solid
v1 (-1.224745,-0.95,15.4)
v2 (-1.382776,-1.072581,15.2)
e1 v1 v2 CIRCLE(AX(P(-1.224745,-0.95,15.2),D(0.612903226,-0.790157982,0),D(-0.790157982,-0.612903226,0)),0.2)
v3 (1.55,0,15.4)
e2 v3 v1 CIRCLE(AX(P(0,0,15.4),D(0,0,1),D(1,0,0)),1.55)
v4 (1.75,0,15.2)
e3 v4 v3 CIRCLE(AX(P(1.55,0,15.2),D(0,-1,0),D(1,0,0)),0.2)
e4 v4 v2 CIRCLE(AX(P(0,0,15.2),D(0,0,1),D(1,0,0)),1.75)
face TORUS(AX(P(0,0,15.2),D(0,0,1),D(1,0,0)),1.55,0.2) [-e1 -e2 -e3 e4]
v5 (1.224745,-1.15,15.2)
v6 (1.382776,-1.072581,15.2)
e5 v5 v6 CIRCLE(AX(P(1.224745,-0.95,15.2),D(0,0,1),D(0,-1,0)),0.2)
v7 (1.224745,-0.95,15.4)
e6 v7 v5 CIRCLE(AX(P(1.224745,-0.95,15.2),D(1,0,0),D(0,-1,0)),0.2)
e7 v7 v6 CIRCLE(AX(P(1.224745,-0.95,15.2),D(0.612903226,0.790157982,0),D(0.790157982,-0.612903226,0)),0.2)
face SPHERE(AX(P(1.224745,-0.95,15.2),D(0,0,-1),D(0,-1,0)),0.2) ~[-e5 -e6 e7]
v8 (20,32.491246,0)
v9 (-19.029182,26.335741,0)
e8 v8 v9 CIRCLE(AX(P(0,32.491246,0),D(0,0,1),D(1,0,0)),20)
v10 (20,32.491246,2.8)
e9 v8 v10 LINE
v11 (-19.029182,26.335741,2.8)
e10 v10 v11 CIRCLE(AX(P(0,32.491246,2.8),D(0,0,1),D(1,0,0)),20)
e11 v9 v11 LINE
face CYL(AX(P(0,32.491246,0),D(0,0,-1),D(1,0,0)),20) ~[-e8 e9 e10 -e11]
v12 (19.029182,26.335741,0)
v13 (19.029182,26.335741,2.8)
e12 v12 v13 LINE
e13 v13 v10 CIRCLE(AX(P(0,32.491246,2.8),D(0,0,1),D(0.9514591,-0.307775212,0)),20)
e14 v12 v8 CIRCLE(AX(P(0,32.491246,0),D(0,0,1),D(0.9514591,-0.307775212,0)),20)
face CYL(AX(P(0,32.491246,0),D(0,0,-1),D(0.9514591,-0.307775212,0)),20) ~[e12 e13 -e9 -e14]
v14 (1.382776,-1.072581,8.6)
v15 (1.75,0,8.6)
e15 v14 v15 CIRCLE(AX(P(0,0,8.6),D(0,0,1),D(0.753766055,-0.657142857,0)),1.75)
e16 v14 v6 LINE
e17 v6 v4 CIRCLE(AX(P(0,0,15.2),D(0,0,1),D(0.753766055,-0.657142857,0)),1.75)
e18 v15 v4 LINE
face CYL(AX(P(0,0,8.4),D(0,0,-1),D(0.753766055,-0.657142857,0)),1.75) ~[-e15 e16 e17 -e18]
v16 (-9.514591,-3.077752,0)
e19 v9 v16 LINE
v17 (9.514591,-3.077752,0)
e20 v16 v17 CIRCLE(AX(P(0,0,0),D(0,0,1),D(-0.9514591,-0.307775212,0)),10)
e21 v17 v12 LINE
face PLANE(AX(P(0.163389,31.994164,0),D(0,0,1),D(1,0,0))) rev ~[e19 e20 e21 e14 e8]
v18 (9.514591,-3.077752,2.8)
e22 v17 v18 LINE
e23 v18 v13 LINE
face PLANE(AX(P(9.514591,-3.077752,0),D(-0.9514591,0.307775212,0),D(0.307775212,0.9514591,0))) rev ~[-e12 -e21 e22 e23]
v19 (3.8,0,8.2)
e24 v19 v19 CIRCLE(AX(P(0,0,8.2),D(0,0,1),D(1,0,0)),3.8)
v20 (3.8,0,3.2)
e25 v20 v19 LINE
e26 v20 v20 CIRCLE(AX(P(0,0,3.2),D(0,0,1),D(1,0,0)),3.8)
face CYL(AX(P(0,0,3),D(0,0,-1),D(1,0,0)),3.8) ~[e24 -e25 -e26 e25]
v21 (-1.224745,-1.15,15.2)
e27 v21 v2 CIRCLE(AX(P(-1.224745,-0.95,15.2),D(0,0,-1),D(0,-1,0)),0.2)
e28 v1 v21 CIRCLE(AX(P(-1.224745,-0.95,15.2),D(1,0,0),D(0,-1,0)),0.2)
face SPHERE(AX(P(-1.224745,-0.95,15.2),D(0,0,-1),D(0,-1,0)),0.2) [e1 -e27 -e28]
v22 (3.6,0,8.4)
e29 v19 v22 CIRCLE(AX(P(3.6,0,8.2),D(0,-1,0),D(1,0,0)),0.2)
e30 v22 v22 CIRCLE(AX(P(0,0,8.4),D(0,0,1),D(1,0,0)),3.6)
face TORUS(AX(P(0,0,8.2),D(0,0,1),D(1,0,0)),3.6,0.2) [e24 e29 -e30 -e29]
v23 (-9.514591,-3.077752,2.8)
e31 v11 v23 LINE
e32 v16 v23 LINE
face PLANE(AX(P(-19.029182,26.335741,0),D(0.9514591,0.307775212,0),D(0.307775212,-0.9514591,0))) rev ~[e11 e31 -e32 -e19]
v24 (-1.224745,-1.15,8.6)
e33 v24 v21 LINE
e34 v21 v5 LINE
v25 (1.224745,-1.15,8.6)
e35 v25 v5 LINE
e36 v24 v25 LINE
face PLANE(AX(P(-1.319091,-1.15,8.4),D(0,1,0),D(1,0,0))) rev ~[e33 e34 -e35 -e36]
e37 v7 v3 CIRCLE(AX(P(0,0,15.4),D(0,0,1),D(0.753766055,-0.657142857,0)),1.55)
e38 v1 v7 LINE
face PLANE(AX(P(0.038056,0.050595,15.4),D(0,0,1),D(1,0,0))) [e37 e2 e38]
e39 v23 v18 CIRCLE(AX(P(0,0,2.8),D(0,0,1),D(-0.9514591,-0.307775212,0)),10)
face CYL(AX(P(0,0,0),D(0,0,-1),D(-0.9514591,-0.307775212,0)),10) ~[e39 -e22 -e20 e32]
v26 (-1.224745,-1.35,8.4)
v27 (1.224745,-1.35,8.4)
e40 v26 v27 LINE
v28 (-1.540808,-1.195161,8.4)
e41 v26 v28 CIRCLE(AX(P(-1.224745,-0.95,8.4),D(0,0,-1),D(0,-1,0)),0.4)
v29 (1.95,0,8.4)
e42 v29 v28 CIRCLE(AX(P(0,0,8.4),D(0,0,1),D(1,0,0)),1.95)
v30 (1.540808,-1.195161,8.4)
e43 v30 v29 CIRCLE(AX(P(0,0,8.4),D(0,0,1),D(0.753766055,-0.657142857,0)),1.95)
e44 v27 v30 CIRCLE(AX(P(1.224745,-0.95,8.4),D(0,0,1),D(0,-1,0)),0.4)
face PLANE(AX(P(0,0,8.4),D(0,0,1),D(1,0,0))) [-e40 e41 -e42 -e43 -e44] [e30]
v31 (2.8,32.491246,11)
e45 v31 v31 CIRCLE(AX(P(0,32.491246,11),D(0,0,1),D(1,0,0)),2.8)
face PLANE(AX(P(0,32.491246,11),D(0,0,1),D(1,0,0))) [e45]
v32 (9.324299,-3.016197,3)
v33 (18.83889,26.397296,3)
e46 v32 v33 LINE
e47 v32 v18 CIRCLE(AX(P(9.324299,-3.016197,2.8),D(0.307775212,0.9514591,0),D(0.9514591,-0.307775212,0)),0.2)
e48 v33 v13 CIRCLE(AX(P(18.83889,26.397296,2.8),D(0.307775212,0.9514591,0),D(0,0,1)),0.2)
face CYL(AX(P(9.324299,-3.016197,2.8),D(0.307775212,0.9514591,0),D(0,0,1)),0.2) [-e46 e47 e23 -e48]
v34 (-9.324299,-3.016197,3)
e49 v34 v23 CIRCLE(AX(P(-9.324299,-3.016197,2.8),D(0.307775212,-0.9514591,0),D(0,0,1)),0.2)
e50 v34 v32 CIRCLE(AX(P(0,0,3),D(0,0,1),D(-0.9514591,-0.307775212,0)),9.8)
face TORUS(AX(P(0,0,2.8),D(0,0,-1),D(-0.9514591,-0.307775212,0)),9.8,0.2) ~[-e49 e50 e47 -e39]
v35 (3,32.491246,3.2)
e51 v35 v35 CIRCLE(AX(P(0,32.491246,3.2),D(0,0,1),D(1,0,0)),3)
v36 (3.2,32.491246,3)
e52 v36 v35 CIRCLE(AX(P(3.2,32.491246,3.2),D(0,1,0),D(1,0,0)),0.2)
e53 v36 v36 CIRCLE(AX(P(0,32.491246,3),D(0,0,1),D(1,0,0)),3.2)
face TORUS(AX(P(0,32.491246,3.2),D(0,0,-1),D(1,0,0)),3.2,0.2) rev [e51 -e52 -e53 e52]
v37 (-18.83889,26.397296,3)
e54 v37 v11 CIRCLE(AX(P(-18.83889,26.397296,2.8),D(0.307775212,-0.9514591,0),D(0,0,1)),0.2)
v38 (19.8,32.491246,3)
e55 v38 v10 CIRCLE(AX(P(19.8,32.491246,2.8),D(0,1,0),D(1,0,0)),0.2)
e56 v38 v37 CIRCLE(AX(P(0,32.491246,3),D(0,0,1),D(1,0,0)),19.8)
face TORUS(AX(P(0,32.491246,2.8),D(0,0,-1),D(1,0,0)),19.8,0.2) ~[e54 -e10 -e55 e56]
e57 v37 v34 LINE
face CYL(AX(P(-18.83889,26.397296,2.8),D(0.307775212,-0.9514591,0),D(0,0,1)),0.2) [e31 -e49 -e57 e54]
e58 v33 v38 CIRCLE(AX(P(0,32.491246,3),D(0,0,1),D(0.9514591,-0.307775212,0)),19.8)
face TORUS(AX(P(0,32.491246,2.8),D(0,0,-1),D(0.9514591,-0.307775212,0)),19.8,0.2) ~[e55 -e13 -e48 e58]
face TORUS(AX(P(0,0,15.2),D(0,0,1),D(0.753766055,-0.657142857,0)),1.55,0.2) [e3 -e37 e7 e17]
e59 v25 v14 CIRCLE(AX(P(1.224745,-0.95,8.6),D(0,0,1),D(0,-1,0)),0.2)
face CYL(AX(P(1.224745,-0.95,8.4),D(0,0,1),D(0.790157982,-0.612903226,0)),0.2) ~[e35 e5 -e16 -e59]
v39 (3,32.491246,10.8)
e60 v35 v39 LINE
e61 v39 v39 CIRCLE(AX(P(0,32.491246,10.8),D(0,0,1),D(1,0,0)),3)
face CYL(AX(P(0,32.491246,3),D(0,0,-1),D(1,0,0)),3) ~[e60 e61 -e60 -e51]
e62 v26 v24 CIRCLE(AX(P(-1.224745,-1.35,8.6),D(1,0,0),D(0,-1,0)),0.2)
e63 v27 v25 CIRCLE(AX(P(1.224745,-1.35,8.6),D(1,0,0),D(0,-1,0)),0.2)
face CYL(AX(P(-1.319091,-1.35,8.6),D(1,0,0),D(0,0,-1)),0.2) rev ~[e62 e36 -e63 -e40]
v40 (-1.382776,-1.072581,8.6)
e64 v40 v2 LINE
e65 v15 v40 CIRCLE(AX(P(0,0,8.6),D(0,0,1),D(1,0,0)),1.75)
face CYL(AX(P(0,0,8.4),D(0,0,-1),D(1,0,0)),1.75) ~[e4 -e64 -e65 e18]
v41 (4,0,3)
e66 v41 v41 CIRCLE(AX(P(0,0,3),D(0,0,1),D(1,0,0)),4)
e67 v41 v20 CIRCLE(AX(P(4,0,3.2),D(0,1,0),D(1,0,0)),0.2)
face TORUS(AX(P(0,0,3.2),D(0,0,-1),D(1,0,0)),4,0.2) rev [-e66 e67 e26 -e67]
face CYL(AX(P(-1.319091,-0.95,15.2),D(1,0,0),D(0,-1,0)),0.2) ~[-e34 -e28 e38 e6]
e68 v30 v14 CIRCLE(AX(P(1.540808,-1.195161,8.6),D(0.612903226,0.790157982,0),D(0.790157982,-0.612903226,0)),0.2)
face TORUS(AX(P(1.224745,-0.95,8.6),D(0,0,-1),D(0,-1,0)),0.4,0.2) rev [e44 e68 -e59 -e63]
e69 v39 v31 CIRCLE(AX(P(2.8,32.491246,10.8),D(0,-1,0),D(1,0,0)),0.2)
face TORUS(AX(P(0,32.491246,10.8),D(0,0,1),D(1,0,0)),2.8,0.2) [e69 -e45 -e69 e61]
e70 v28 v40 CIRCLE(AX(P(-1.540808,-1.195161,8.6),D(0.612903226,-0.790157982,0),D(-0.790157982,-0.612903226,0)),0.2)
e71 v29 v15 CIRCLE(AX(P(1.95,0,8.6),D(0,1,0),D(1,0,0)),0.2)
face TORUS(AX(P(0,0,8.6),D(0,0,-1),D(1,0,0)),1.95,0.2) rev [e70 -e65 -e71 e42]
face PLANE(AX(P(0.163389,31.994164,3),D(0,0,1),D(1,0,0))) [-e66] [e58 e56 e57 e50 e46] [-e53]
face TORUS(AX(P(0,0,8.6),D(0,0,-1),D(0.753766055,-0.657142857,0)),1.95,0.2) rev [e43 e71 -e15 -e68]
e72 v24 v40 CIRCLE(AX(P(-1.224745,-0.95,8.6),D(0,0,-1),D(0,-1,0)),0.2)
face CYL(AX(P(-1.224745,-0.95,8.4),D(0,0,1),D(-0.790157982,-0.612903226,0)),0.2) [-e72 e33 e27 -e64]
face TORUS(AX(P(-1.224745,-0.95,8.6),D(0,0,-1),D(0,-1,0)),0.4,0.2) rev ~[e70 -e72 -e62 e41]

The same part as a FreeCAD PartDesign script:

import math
import FreeCAD as App
import Part
import Sketcher

V = App.Vector
Q = App.Units.Quantity


def edges_at(feature, points):
    """Names of the edges that pass closest to the given points."""
    edges = feature.Shape.Edges
    near = lambda p: min(range(len(edges)), key=lambda i: edges[i].distToShape(Part.Vertex(*p))[0])
    return sorted({f"Edge{near(p) + 1}" for p in points})

doc = App.newDocument("Part")
params = doc.addObject("Spreadsheet::Sheet", "Params")
for row, (alias, value) in enumerate([
    ("sketch1_radius", "20 mm"),
    ("sketch1_radius2", "10 mm"),
    ("pad1_length", "3 mm"),
    ("sketch2_diameter", "6 mm"),
    ("pad2_length", "8 mm"),
    ("sketch3_diameter", "7.6 mm"),
    ("pad3_length", "5.4 mm"),
    ("sketch4_radius", "1.75 mm"),
    ("pad4_length", "7 mm"),
    ("fillet_radius", "0.2 mm"),
], start=1):
    params.set(f"A{row}", alias)
    params.set(f"B{row}", "=" + value)
    params.setAlias(f"B{row}", alias)

body = doc.addObject("PartDesign::Body", "Body")

sketch1 = body.newObject("Sketcher::SketchObject", "Sketch")
sketch1.AttachmentSupport = (doc.getObject("XY_Plane"), [""])
sketch1.MapMode = "FlatFace"
sketch1.addGeometry([
    Part.ArcOfCircle(Part.Circle(V(0, 32, 0), V(0, 0, 1), 20), math.radians(-17.93), math.radians(0)),
    Part.ArcOfCircle(Part.Circle(V(0, 32, 0), V(0, 0, 1), 20), math.radians(0), math.radians(198)),
    Part.LineSegment(V(-19, 26, 0), V(-10, -3, 0)),
    Part.ArcOfCircle(Part.Circle(V(0, 0, 0), V(0, 0, 1), 10), math.radians(-162), math.radians(-18)),
    Part.LineSegment(V(10, -3, 0), V(19, 26, 0)),
], False)
sketch1.addConstraint([
    Sketcher.Constraint("Tangent", 0, 2, 1, 1),
    Sketcher.Constraint("Tangent", 1, 2, 2, 1),
    Sketcher.Constraint("Tangent", 2, 2, 3, 1),
    Sketcher.Constraint("Tangent", 3, 2, 4, 1),
    Sketcher.Constraint("Tangent", 4, 2, 0, 1),
    Sketcher.Constraint("Coincident", 3, 3, -1, 1),
    Sketcher.Constraint("Equal", 0, 1),
    Sketcher.Constraint("PointOnObject", 0, 3, -2),
    Sketcher.Constraint("Horizontal", 1, 3, 0, 2),
    Sketcher.Constraint("Radius", 0, Q("20 mm")),
    Sketcher.Constraint("Radius", 3, Q("10 mm")),
    Sketcher.Constraint("Distance", 2, Q("30.914091 mm")),
])
sketch1.setExpression("Constraints[9]", "Params.sketch1_radius")
sketch1.setExpression("Constraints[10]", "Params.sketch1_radius2")
pad1 = body.newObject("PartDesign::Pad", "Pad")
pad1.Profile = sketch1
pad1.setExpression("Length", "Params.pad1_length")

sketch2 = body.newObject("Sketcher::SketchObject", "Sketch001")
sketch2.AttachmentSupport = (doc.getObject("XY_Plane"), [""])
sketch2.MapMode = "FlatFace"
sketch2.AttachmentOffset = App.Placement(V(0, 0, 3), App.Rotation())
sketch2.addGeometry(Part.Circle(V(0, 32.5, 0), V(0, 0, 1), 3), False)
sketch2.addConstraint([
    Sketcher.Constraint("PointOnObject", 0, 3, -2),
    Sketcher.Constraint("Diameter", 0, Q("6 mm")),
    Sketcher.Constraint("DistanceY", -1, 1, 0, 3, Q("32.491246 mm")),
])
sketch2.setExpression("Constraints[1]", "Params.sketch2_diameter")
pad2 = body.newObject("PartDesign::Pad", "Pad001")
pad2.Profile = sketch2
pad2.setExpression("Length", "Params.pad2_length")

sketch3 = body.newObject("Sketcher::SketchObject", "Sketch002")
sketch3.AttachmentSupport = (doc.getObject("XY_Plane"), [""])
sketch3.MapMode = "FlatFace"
sketch3.AttachmentOffset = App.Placement(V(0, 0, 3), App.Rotation())
sketch3.addGeometry(Part.Circle(V(0, 0, 0), V(0, 0, 1), 3.8), False)
sketch3.addConstraint([
    Sketcher.Constraint("Coincident", 0, 3, -1, 1),
    Sketcher.Constraint("Diameter", 0, Q("7.6 mm")),
])
sketch3.setExpression("Constraints[1]", "Params.sketch3_diameter")
pad3 = body.newObject("PartDesign::Pad", "Pad002")
pad3.Profile = sketch3
pad3.setExpression("Length", "Params.pad3_length")

sketch4 = body.newObject("Sketcher::SketchObject", "Sketch003")
sketch4.AttachmentSupport = (doc.getObject("XY_Plane"), [""])
sketch4.MapMode = "FlatFace"
sketch4.AttachmentOffset = App.Placement(V(0, 0, 8.4), App.Rotation())
sketch4.addGeometry([
    Part.ArcOfCircle(Part.Circle(V(0, 0, 0), V(0, 0, 1), 1.8), math.radians(-41), math.radians(0)),
    Part.ArcOfCircle(Part.Circle(V(0, 0, 0), V(0, 0, 1), 1.8), math.radians(0), math.radians(221)),
    Part.LineSegment(V(-1.3, -1.1, 0), V(1.3, -1.1, 0)),
], False)
sketch4.addConstraint([
    Sketcher.Constraint("Tangent", 0, 2, 1, 1),
    Sketcher.Constraint("Coincident", 1, 2, 2, 1),
    Sketcher.Constraint("Coincident", 2, 2, 0, 1),
    Sketcher.Constraint("Horizontal", 2),
    Sketcher.Constraint("Coincident", 0, 3, -1, 1),
    Sketcher.Constraint("Equal", 0, 1),
    Sketcher.Constraint("PointOnObject", 0, 2, -1),
    Sketcher.Constraint("Radius", 0, Q("1.75 mm")),
    Sketcher.Constraint("DistanceY", 1, 2, -1, 1, Q("1.15 mm")),
])
sketch4.setExpression("Constraints[7]", "Params.sketch4_radius")
pad4 = body.newObject("PartDesign::Pad", "Pad003")
pad4.Profile = sketch4
pad4.setExpression("Length", "Params.pad4_length")
doc.recompute()

fillet = body.newObject("PartDesign::Fillet", "Fillet")
fillet.Base = (pad4, edges_at(pad4, [
    (-3, 32.491, 11),
    (0, -1.15, 15.4),
    (-0.614, 1.639, 15.4),
    (-3.8, 0, 8.4),
    (0, -1.15, 8.4),
    (-0.614, 1.639, 8.4),
    (-14.272, 11.629, 3),
    (-3.116, 52.247, 3),
    (0, -10, 3),
    (14.272, 11.629, 3),
    (-3.8, 0, 3),
    (-3, 32.491, 3),
    (-1.319, -1.15, 11.9),
    (1.319, -1.15, 11.9),
]))
fillet.setExpression("Radius", "Params.fillet_radius")

doc.recompute()
